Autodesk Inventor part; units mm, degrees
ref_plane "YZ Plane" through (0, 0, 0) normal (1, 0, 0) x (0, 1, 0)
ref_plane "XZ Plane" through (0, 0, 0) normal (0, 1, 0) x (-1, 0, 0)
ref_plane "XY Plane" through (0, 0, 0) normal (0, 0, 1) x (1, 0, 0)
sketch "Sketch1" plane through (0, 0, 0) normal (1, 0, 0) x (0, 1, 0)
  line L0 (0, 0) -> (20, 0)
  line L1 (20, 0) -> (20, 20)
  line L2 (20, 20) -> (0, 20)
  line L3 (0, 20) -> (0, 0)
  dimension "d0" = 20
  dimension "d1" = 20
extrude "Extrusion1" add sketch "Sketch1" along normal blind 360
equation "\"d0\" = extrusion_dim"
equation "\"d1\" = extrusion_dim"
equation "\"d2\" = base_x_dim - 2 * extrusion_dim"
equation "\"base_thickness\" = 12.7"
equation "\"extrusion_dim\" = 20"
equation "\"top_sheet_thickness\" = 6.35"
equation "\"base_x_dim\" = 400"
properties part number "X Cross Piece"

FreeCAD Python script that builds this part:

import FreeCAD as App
import Part
import Sketcher

doc = App.newDocument("Part")
body = doc.addObject("PartDesign::Body", "Body")

# Sketch on YZ plane
sketch1 = body.newObject("Sketcher::SketchObject", "Sketch")
sketch1.AttachmentSupport = (doc.getObject("YZ_Plane"), [""])
sketch1.MapMode = "FlatFace"
sketch1.addGeometry([
    Part.LineSegment(App.Vector(0, 20, 0), App.Vector(0, 0, 0)),
    Part.LineSegment(App.Vector(0, 0, 0), App.Vector(20, 0, 0)),
    Part.LineSegment(App.Vector(20, 0, 0), App.Vector(20, 20, 0)),
    Part.LineSegment(App.Vector(20, 20, 0), App.Vector(0, 20, 0)),
], False)
sketch1.addConstraint([
    Sketcher.Constraint("Coincident", 0, 2, 1, 1),
    Sketcher.Constraint("Coincident", 1, 2, 2, 1),
    Sketcher.Constraint("Coincident", 2, 2, 3, 1),
    Sketcher.Constraint("Coincident", 3, 2, 0, 1),
    Sketcher.Constraint("Vertical", 0),
    Sketcher.Constraint("Horizontal", 1),
    Sketcher.Constraint("Vertical", 2),
    Sketcher.Constraint("Horizontal", 3),
    Sketcher.Constraint("Coincident", 0, 2, -1, 1),
    Sketcher.Constraint("Equal", 3, 0),
    Sketcher.Constraint("DistanceX", 1, 1, 1, 2, 20.0),
])
pad1 = body.newObject("PartDesign::Pad", "Pad")
pad1.Profile = sketch1
pad1.Length = 360

doc.recompute()
